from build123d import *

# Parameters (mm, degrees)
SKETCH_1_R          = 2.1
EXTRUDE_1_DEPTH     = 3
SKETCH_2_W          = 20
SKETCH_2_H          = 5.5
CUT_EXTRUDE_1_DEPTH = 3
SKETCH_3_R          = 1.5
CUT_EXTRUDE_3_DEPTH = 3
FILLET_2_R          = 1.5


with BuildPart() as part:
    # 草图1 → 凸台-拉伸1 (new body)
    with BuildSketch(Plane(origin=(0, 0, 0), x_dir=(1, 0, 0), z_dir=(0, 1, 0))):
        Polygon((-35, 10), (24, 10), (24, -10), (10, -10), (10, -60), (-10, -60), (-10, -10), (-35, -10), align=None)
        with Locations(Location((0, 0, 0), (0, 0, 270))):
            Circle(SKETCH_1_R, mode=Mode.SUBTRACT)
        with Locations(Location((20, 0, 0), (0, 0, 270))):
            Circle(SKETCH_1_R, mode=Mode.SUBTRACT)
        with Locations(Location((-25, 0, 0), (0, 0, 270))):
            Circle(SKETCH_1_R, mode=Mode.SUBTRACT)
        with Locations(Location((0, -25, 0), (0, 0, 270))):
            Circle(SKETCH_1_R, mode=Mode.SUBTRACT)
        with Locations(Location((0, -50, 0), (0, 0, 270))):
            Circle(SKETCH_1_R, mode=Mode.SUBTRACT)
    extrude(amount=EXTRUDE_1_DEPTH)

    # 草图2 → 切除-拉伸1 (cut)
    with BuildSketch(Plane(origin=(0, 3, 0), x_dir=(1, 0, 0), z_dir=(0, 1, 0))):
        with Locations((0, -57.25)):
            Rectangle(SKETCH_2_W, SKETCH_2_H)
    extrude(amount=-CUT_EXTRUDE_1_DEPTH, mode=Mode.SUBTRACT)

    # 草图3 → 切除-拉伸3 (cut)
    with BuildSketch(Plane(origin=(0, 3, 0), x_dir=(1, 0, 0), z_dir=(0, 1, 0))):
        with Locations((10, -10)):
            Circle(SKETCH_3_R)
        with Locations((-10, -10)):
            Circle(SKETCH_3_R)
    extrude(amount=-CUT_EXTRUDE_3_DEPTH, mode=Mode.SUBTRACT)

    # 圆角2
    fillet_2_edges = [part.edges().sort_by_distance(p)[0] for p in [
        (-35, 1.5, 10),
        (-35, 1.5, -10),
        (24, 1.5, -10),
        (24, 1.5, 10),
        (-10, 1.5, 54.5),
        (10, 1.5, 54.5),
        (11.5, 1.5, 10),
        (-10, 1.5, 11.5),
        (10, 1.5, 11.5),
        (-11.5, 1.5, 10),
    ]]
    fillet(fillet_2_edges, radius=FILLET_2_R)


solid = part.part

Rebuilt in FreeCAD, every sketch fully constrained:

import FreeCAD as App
import Part
import Sketcher
Q = App.Units.Quantity


def edges_at(feature, points):
    """Names of the edges that pass closest to the given points."""
    edges = feature.Shape.Edges
    near = lambda p: min(range(len(edges)), key=lambda i: edges[i].distToShape(Part.Vertex(*p))[0])
    return sorted({f"Edge{near(p) + 1}" for p in points})

doc = App.newDocument("Part")
body = doc.addObject("PartDesign::Body", "Body")

# Sketch on XZ plane
sketch1 = body.newObject("Sketcher::SketchObject", "Sketch")
sketch1.AttachmentSupport = (doc.getObject("XZ_Plane"), [""])
sketch1.MapMode = "FlatFace"
sketch1.addGeometry(Part.LineSegment(App.Vector(24, -10, 0), App.Vector(-35, -10, 0)), False)
sketch1.addGeometry(Part.LineSegment(App.Vector(-35, -10, 0), App.Vector(-35, 10, 0)), False)
sketch1.addGeometry(Part.LineSegment(App.Vector(-35, 10, 0), App.Vector(-10, 10, 0)), False)
sketch1.addGeometry(Part.LineSegment(App.Vector(-10, 10, 0), App.Vector(-10, 60, 0)), False)
sketch1.addGeometry(Part.LineSegment(App.Vector(-10, 60, 0), App.Vector(10, 60, 0)), False)
sketch1.addGeometry(Part.LineSegment(App.Vector(10, 60, 0), App.Vector(10, 10, 0)), False)
sketch1.addGeometry(Part.LineSegment(App.Vector(10, 10, 0), App.Vector(24, 10, 0)), False)
sketch1.addGeometry(Part.LineSegment(App.Vector(24, 10, 0), App.Vector(24, -10, 0)), False)
sketch1.addGeometry(Part.Circle(App.Vector(0, 50, 0), App.Vector(0, 0, 1), 2.1), False)
sketch1.addGeometry(Part.Circle(App.Vector(0, 25, 0), App.Vector(0, 0, 1), 2.1), False)
sketch1.addGeometry(Part.Circle(App.Vector(20, 0, 0), App.Vector(0, 0, 1), 2.1), False)
sketch1.addGeometry(Part.Circle(App.Vector(0, 0, 0), App.Vector(0, 0, 1), 2.1), False)
sketch1.addGeometry(Part.Circle(App.Vector(-25, 0, 0), App.Vector(0, 0, 1), 2.1), False)
sketch1.addConstraint(Sketcher.Constraint("Coincident", 0, 2, 1, 1))
sketch1.addConstraint(Sketcher.Constraint("Coincident", 1, 2, 2, 1))
sketch1.addConstraint(Sketcher.Constraint("Coincident", 2, 2, 3, 1))
sketch1.addConstraint(Sketcher.Constraint("Coincident", 3, 2, 4, 1))
sketch1.addConstraint(Sketcher.Constraint("Coincident", 4, 2, 5, 1))
sketch1.addConstraint(Sketcher.Constraint("Coincident", 5, 2, 6, 1))
sketch1.addConstraint(Sketcher.Constraint("Coincident", 6, 2, 7, 1))
sketch1.addConstraint(Sketcher.Constraint("Coincident", 7, 2, 0, 1))
sketch1.addConstraint(Sketcher.Constraint("Horizontal", 0))
sketch1.addConstraint(Sketcher.Constraint("Vertical", 1))
sketch1.addConstraint(Sketcher.Constraint("Horizontal", 2))
sketch1.addConstraint(Sketcher.Constraint("Vertical", 3))
sketch1.addConstraint(Sketcher.Constraint("Horizontal", 4))
sketch1.addConstraint(Sketcher.Constraint("Vertical", 5))
sketch1.addConstraint(Sketcher.Constraint("Horizontal", 6))
sketch1.addConstraint(Sketcher.Constraint("Vertical", 7))
sketch1.addConstraint(Sketcher.Constraint("Coincident", 11, 3, -1, 1))
sketch1.addConstraint(Sketcher.Constraint("Equal", 8, 9))
sketch1.addConstraint(Sketcher.Constraint("Equal", 9, 10))
sketch1.addConstraint(Sketcher.Constraint("Equal", 10, 11))
sketch1.addConstraint(Sketcher.Constraint("Equal", 11, 12))
sketch1.addConstraint(Sketcher.Constraint("Symmetric", 2, 2, 5, 2, -2))
sketch1.addConstraint(Sketcher.Constraint("PointOnObject", 8, 3, -2))
sketch1.addConstraint(Sketcher.Constraint("PointOnObject", 9, 3, -2))
sketch1.addConstraint(Sketcher.Constraint("PointOnObject", 10, 3, -1))
sketch1.addConstraint(Sketcher.Constraint("PointOnObject", 12, 3, -1))
sketch1.addConstraint(Sketcher.Constraint("Equal", 4, 1))
sketch1.addConstraint(Sketcher.Constraint("Diameter", 8, Q("4.2 mm")))
sketch1.addConstraint(Sketcher.Constraint("DistanceX", 0, 2, 0, 1, Q("59 mm")))
sketch1.addConstraint(Sketcher.Constraint("DistanceX", 2, 1, 2, 2, Q("25 mm")))
sketch1.addConstraint(Sketcher.Constraint("DistanceX", 4, 1, 4, 2, Q("20 mm")))
sketch1.addConstraint(Sketcher.Constraint("DistanceY", 3, 1, 3, 2, Q("50 mm")))
sketch1.addConstraint(Sketcher.Constraint("DistanceY", -1, 1, 8, 3, Q("50 mm")))
sketch1.addConstraint(Sketcher.Constraint("DistanceY", -1, 1, 9, 3, Q("25 mm")))
sketch1.addConstraint(Sketcher.Constraint("DistanceX", -1, 1, 10, 3, Q("20 mm")))
sketch1.addConstraint(Sketcher.Constraint("DistanceX", 12, 3, -1, 1, Q("25 mm")))
sketch1.addConstraint(Sketcher.Constraint("DistanceY", 0, 2, -1, 1, Q("10 mm")))
pad1 = body.newObject("PartDesign::Pad", "Pad")
pad1.Profile = sketch1
pad1.Length = 3
pad1.Reversed = True

# Sketch on XZ plane
sketch2 = body.newObject("Sketcher::SketchObject", "Sketch001")
sketch2.AttachmentSupport = (doc.getObject("XZ_Plane"), [""])
sketch2.MapMode = "FlatFace"
sketch2.AttachmentOffset = App.Placement(App.Vector(0, 0, -3), App.Rotation())
sketch2.addGeometry(Part.LineSegment(App.Vector(-10, 54, 0), App.Vector(-10, 60, 0)), False)
sketch2.addGeometry(Part.LineSegment(App.Vector(-10, 60, 0), App.Vector(10, 60, 0)), False)
sketch2.addGeometry(Part.LineSegment(App.Vector(10, 60, 0), App.Vector(10, 54, 0)), False)
sketch2.addGeometry(Part.LineSegment(App.Vector(10, 54, 0), App.Vector(-10, 54, 0)), False)
sketch2.addConstraint(Sketcher.Constraint("Coincident", 0, 2, 1, 1))
sketch2.addConstraint(Sketcher.Constraint("Coincident", 1, 2, 2, 1))
sketch2.addConstraint(Sketcher.Constraint("Coincident", 2, 2, 3, 1))
sketch2.addConstraint(Sketcher.Constraint("Coincident", 3, 2, 0, 1))
sketch2.addConstraint(Sketcher.Constraint("Vertical", 0))
sketch2.addConstraint(Sketcher.Constraint("Horizontal", 1))
sketch2.addConstraint(Sketcher.Constraint("Vertical", 2))
sketch2.addConstraint(Sketcher.Constraint("Horizontal", 3))
sketch2.addConstraint(Sketcher.Constraint("DistanceX", 1, 1, 1, 2, Q("20 mm")))
sketch2.addConstraint(Sketcher.Constraint("DistanceY", 0, 1, 0, 2, Q("5.5 mm")))
sketch2.addConstraint(Sketcher.Constraint("DistanceX", 0, 2, -1, 1, Q("10 mm")))
sketch2.addConstraint(Sketcher.Constraint("DistanceY", -1, 1, 0, 2, Q("60 mm")))
pocket1 = body.newObject("PartDesign::Pocket", "Pocket")
pocket1.Profile = sketch2
pocket1.Length = 3
pocket1.Reversed = True

# Sketch on XZ plane
sketch3 = body.newObject("Sketcher::SketchObject", "Sketch002")
sketch3.AttachmentSupport = (doc.getObject("XZ_Plane"), [""])
sketch3.MapMode = "FlatFace"
sketch3.AttachmentOffset = App.Placement(App.Vector(0, 0, -3), App.Rotation())
sketch3.addGeometry(Part.Circle(App.Vector(10, 10, 0), App.Vector(0, 0, 1), 1.5), False)
sketch3.addGeometry(Part.Circle(App.Vector(-10, 10, 0), App.Vector(0, 0, 1), 1.5), False)
sketch3.addConstraint(Sketcher.Constraint("Equal", 0, 1))
sketch3.addConstraint(Sketcher.Constraint("Symmetric", 0, 3, 1, 3, -2))
sketch3.addConstraint(Sketcher.Constraint("Diameter", 0, Q("3 mm")))
sketch3.addConstraint(Sketcher.Constraint("DistanceX", -1, 1, 0, 3, Q("10 mm")))
sketch3.addConstraint(Sketcher.Constraint("DistanceY", -1, 1, 0, 3, Q("10 mm")))
pocket2 = body.newObject("PartDesign::Pocket", "Pocket001")
pocket2.Profile = sketch3
pocket2.Length = 3
pocket2.Reversed = True
doc.recompute()

fillet = body.newObject("PartDesign::Fillet", "Fillet")
fillet.Base = (pocket2, edges_at(pocket2, [
    (-35, 1.5, 10),
    (-35, 1.5, -10),
    (24, 1.5, -10),
    (24, 1.5, 10),
    (-10, 1.5, 54.5),
    (10, 1.5, 54.5),
    (11.5, 1.5, 10),
    (-10, 1.5, 11.5),
    (10, 1.5, 11.5),
    (-11.5, 1.5, 10),
]))
fillet.Radius = 1.5

doc.recompute()
